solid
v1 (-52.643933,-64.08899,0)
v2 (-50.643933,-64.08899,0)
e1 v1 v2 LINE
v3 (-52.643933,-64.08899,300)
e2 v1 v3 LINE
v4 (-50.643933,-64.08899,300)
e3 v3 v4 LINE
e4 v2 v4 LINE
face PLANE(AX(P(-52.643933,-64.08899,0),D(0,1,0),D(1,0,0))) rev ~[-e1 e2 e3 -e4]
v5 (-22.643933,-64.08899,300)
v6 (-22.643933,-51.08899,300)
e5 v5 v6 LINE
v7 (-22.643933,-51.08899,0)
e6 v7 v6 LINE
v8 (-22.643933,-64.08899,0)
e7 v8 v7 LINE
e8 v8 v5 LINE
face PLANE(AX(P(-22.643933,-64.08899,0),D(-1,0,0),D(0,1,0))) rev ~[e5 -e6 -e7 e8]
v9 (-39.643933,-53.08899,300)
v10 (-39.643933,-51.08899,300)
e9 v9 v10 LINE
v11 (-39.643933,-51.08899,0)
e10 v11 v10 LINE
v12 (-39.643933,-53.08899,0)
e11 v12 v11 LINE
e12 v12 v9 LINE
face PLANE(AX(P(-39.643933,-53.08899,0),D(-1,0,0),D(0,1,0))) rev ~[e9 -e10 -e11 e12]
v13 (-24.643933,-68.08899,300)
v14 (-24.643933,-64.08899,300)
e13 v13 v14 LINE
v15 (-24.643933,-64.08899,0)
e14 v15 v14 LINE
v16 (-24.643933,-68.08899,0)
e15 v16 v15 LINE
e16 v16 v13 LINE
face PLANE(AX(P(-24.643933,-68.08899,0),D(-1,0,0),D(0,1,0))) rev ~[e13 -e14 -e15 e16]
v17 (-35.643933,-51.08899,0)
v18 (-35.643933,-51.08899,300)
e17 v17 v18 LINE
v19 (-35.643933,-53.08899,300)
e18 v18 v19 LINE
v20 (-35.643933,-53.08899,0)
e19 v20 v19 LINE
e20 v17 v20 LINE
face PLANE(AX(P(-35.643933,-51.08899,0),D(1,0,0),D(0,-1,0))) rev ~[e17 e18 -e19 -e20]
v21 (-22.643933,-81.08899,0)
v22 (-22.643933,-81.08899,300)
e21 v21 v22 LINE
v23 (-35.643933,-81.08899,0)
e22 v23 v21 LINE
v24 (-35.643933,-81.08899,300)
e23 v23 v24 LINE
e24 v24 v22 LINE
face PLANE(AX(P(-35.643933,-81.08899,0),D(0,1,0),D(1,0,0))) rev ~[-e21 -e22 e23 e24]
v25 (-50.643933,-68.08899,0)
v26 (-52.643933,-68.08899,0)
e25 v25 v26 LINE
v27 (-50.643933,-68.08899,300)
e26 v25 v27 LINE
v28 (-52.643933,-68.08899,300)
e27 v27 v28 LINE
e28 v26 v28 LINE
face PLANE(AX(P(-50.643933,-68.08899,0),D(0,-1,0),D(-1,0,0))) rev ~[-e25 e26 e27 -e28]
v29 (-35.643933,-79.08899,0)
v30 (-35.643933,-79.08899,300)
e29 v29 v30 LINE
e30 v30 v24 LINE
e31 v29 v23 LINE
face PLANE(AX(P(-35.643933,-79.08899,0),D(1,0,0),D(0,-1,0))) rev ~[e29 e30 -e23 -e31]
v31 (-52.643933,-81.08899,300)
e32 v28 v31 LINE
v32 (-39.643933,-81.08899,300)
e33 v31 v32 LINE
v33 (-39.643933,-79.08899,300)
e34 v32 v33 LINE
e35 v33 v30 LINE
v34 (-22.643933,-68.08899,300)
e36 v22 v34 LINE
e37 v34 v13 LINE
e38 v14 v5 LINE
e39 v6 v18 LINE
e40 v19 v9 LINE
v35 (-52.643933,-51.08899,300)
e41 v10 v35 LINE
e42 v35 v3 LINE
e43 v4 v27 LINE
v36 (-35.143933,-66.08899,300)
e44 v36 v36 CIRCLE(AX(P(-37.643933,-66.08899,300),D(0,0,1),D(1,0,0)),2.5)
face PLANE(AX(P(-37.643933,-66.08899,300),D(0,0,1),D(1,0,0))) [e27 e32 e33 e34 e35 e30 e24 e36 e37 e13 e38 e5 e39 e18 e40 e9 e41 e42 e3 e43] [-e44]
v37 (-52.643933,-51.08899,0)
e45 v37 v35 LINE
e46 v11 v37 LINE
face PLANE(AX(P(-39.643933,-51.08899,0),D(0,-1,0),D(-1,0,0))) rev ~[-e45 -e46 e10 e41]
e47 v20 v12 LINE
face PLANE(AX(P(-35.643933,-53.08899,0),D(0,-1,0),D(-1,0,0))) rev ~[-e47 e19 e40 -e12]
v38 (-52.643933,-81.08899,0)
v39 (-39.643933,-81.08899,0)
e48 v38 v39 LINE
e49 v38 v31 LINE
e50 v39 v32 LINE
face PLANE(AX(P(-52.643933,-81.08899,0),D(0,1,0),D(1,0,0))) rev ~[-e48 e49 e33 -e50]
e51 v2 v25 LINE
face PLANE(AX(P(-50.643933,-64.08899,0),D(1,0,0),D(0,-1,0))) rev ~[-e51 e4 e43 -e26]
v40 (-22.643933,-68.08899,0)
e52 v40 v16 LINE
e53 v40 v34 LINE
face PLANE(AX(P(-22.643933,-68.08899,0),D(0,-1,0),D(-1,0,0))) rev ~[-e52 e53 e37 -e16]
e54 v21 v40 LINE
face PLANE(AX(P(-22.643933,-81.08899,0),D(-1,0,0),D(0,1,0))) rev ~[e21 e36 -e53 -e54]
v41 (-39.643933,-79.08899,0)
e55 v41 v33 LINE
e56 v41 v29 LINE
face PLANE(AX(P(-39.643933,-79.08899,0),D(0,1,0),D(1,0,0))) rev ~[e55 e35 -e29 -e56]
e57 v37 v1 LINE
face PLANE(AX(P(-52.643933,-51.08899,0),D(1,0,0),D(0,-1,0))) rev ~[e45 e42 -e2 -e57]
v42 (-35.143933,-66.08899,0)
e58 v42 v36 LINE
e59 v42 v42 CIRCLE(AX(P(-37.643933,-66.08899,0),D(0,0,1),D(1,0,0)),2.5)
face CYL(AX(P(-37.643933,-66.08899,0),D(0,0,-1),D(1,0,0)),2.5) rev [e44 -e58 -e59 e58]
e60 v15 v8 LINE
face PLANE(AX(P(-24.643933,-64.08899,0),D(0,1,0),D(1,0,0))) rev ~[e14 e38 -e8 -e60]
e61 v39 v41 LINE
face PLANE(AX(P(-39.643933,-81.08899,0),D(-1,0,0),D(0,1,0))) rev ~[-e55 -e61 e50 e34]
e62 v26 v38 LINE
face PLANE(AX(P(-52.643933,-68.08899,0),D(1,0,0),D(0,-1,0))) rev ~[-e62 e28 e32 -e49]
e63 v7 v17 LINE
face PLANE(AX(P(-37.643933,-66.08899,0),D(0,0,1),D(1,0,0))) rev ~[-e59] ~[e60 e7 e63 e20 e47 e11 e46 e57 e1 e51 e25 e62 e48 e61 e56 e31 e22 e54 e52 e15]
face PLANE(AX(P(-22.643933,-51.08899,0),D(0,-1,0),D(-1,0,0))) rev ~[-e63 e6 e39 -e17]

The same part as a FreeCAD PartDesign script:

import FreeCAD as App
import Part
import Sketcher

doc = App.newDocument("Part")
body = doc.addObject("PartDesign::Body", "Body")

# Sketch on XY plane
sketch1 = doc.addObject("Sketcher::SketchObject", "Sketch")
body.addObject(sketch1)
sketch1.AttachmentSupport = (doc.XY_Plane, [""])
sketch1.MapMode = "FlatFace"
sketch1.addGeometry([
    Part.LineSegment(App.Vector(-52.6, -68.1, 0), App.Vector(-52.6, -81.1, 0)),  # 0
    Part.LineSegment(App.Vector(-52.6, -81.1, 0), App.Vector(-39.6, -81.1, 0)),  # 1
    Part.LineSegment(App.Vector(-39.6, -81.1, 0), App.Vector(-39.6, -79.1, 0)),  # 2
    Part.LineSegment(App.Vector(-39.6, -79.1, 0), App.Vector(-35.6, -79.1, 0)),  # 3
    Part.LineSegment(App.Vector(-35.6, -79.1, 0), App.Vector(-35.6, -81.1, 0)),  # 4
    Part.LineSegment(App.Vector(-35.6, -81.1, 0), App.Vector(-22.6, -81.1, 0)),  # 5
    Part.LineSegment(App.Vector(-22.6, -81.1, 0), App.Vector(-22.6, -68.1, 0)),  # 6
    Part.LineSegment(App.Vector(-22.6, -68.1, 0), App.Vector(-24.6, -68.1, 0)),  # 7
    Part.LineSegment(App.Vector(-24.6, -68.1, 0), App.Vector(-24.6, -64.1, 0)),  # 8
    Part.LineSegment(App.Vector(-24.6, -64.1, 0), App.Vector(-22.6, -64.1, 0)),  # 9
    Part.LineSegment(App.Vector(-22.6, -64.1, 0), App.Vector(-22.6, -51.1, 0)),  # 10
    Part.LineSegment(App.Vector(-22.6, -51.1, 0), App.Vector(-35.6, -51.1, 0)),  # 11
    Part.LineSegment(App.Vector(-35.6, -51.1, 0), App.Vector(-35.6, -53.1, 0)),  # 12
    Part.LineSegment(App.Vector(-35.6, -53.1, 0), App.Vector(-39.6, -53.1, 0)),  # 13
    Part.LineSegment(App.Vector(-39.6, -53.1, 0), App.Vector(-39.6, -51.1, 0)),  # 14
    Part.LineSegment(App.Vector(-39.6, -51.1, 0), App.Vector(-52.6, -51.1, 0)),  # 15
    Part.LineSegment(App.Vector(-52.6, -51.1, 0), App.Vector(-52.6, -64.1, 0)),  # 16
    Part.LineSegment(App.Vector(-52.6, -64.1, 0), App.Vector(-50.6, -64.1, 0)),  # 17
    Part.LineSegment(App.Vector(-50.6, -64.1, 0), App.Vector(-50.6, -68.1, 0)),  # 18
    Part.LineSegment(App.Vector(-50.6, -68.1, 0), App.Vector(-52.6, -68.1, 0)),  # 19
    Part.Circle(App.Vector(-37.6, -66.1, 0), App.Vector(0, 0, 1), 2.5),  # 20
], False)
sketch1.addConstraint([
    Sketcher.Constraint("Coincident", 0, 2, 1, 1),
    Sketcher.Constraint("Coincident", 1, 2, 2, 1),
    Sketcher.Constraint("Coincident", 2, 2, 3, 1),
    Sketcher.Constraint("Coincident", 3, 2, 4, 1),
    Sketcher.Constraint("Coincident", 4, 2, 5, 1),
    Sketcher.Constraint("Coincident", 5, 2, 6, 1),
    Sketcher.Constraint("Coincident", 6, 2, 7, 1),
    Sketcher.Constraint("Coincident", 7, 2, 8, 1),
    Sketcher.Constraint("Coincident", 8, 2, 9, 1),
    Sketcher.Constraint("Coincident", 9, 2, 10, 1),
    Sketcher.Constraint("Coincident", 10, 2, 11, 1),
    Sketcher.Constraint("Coincident", 11, 2, 12, 1),
    Sketcher.Constraint("Coincident", 12, 2, 13, 1),
    Sketcher.Constraint("Coincident", 13, 2, 14, 1),
    Sketcher.Constraint("Coincident", 14, 2, 15, 1),
    Sketcher.Constraint("Coincident", 15, 2, 16, 1),
    Sketcher.Constraint("Coincident", 16, 2, 17, 1),
    Sketcher.Constraint("Coincident", 17, 2, 18, 1),
    Sketcher.Constraint("Coincident", 18, 2, 19, 1),
    Sketcher.Constraint("Coincident", 19, 2, 0, 1),
    Sketcher.Constraint("Vertical", 0),
    Sketcher.Constraint("Horizontal", 1),
    Sketcher.Constraint("Vertical", 2),
    Sketcher.Constraint("Horizontal", 3),
    Sketcher.Constraint("Vertical", 4),
    Sketcher.Constraint("Horizontal", 5),
    Sketcher.Constraint("Vertical", 6),
    Sketcher.Constraint("Horizontal", 7),
    Sketcher.Constraint("Vertical", 8),
    Sketcher.Constraint("Horizontal", 9),
    Sketcher.Constraint("Vertical", 10),
    Sketcher.Constraint("Horizontal", 11),
    Sketcher.Constraint("Vertical", 12),
    Sketcher.Constraint("Horizontal", 13),
    Sketcher.Constraint("Vertical", 14),
    Sketcher.Constraint("Horizontal", 15),
    Sketcher.Constraint("Vertical", 16),
    Sketcher.Constraint("Horizontal", 17),
    Sketcher.Constraint("Vertical", 18),
    Sketcher.Constraint("Horizontal", 19),
    Sketcher.Constraint("Horizontal", 1, 2, 4, 2),
    Sketcher.Constraint("Horizontal", 11, 2, 14, 2),
    Sketcher.Constraint("Horizontal", 9, 2, 16, 2),
    Sketcher.Constraint("Horizontal", 7, 2, 18, 2),
    Sketcher.Constraint("Vertical", 6, 2, 9, 2),
    Sketcher.Constraint("Vertical", 4, 2, 11, 2),
    Sketcher.Constraint("Vertical", 2, 2, 13, 2),
    Sketcher.Constraint("Vertical", 0, 2, 15, 2),
    Sketcher.Constraint("Equal", 1, 5),
    Sketcher.Constraint("Equal", 9, 17),
    Sketcher.Constraint("Equal", 15, 0),
    Sketcher.Constraint("Equal", 19, 2),
    Sketcher.Constraint("Equal", 13, 8),
    Sketcher.Constraint("Equal", 6, 10),
    Sketcher.Constraint("Equal", 4, 12),
    Sketcher.Constraint("Diameter", 20, 5.0),
    Sketcher.Constraint("DistanceX", 1, 1, 1, 2, 13.0),
    Sketcher.Constraint("DistanceX", 3, 1, 3, 2, 4.0),
    Sketcher.Constraint("DistanceX", 7, 2, 7, 1, 2.0),
    Sketcher.Constraint("DistanceX", 0, 2, 20, 3, 15.0),
    Sketcher.Constraint("DistanceY", 0, 2, 20, 3, 15.0),
    Sketcher.Constraint("DistanceY", 20, 3, -1, 1, 66.08899),
    Sketcher.Constraint("DistanceX", 20, 3, -1, 1, 37.643933),
])
pad1 = doc.addObject("PartDesign::Pad", "Pad")
body.addObject(pad1)
pad1.Profile = sketch1
pad1.Length = 300

doc.recompute()
